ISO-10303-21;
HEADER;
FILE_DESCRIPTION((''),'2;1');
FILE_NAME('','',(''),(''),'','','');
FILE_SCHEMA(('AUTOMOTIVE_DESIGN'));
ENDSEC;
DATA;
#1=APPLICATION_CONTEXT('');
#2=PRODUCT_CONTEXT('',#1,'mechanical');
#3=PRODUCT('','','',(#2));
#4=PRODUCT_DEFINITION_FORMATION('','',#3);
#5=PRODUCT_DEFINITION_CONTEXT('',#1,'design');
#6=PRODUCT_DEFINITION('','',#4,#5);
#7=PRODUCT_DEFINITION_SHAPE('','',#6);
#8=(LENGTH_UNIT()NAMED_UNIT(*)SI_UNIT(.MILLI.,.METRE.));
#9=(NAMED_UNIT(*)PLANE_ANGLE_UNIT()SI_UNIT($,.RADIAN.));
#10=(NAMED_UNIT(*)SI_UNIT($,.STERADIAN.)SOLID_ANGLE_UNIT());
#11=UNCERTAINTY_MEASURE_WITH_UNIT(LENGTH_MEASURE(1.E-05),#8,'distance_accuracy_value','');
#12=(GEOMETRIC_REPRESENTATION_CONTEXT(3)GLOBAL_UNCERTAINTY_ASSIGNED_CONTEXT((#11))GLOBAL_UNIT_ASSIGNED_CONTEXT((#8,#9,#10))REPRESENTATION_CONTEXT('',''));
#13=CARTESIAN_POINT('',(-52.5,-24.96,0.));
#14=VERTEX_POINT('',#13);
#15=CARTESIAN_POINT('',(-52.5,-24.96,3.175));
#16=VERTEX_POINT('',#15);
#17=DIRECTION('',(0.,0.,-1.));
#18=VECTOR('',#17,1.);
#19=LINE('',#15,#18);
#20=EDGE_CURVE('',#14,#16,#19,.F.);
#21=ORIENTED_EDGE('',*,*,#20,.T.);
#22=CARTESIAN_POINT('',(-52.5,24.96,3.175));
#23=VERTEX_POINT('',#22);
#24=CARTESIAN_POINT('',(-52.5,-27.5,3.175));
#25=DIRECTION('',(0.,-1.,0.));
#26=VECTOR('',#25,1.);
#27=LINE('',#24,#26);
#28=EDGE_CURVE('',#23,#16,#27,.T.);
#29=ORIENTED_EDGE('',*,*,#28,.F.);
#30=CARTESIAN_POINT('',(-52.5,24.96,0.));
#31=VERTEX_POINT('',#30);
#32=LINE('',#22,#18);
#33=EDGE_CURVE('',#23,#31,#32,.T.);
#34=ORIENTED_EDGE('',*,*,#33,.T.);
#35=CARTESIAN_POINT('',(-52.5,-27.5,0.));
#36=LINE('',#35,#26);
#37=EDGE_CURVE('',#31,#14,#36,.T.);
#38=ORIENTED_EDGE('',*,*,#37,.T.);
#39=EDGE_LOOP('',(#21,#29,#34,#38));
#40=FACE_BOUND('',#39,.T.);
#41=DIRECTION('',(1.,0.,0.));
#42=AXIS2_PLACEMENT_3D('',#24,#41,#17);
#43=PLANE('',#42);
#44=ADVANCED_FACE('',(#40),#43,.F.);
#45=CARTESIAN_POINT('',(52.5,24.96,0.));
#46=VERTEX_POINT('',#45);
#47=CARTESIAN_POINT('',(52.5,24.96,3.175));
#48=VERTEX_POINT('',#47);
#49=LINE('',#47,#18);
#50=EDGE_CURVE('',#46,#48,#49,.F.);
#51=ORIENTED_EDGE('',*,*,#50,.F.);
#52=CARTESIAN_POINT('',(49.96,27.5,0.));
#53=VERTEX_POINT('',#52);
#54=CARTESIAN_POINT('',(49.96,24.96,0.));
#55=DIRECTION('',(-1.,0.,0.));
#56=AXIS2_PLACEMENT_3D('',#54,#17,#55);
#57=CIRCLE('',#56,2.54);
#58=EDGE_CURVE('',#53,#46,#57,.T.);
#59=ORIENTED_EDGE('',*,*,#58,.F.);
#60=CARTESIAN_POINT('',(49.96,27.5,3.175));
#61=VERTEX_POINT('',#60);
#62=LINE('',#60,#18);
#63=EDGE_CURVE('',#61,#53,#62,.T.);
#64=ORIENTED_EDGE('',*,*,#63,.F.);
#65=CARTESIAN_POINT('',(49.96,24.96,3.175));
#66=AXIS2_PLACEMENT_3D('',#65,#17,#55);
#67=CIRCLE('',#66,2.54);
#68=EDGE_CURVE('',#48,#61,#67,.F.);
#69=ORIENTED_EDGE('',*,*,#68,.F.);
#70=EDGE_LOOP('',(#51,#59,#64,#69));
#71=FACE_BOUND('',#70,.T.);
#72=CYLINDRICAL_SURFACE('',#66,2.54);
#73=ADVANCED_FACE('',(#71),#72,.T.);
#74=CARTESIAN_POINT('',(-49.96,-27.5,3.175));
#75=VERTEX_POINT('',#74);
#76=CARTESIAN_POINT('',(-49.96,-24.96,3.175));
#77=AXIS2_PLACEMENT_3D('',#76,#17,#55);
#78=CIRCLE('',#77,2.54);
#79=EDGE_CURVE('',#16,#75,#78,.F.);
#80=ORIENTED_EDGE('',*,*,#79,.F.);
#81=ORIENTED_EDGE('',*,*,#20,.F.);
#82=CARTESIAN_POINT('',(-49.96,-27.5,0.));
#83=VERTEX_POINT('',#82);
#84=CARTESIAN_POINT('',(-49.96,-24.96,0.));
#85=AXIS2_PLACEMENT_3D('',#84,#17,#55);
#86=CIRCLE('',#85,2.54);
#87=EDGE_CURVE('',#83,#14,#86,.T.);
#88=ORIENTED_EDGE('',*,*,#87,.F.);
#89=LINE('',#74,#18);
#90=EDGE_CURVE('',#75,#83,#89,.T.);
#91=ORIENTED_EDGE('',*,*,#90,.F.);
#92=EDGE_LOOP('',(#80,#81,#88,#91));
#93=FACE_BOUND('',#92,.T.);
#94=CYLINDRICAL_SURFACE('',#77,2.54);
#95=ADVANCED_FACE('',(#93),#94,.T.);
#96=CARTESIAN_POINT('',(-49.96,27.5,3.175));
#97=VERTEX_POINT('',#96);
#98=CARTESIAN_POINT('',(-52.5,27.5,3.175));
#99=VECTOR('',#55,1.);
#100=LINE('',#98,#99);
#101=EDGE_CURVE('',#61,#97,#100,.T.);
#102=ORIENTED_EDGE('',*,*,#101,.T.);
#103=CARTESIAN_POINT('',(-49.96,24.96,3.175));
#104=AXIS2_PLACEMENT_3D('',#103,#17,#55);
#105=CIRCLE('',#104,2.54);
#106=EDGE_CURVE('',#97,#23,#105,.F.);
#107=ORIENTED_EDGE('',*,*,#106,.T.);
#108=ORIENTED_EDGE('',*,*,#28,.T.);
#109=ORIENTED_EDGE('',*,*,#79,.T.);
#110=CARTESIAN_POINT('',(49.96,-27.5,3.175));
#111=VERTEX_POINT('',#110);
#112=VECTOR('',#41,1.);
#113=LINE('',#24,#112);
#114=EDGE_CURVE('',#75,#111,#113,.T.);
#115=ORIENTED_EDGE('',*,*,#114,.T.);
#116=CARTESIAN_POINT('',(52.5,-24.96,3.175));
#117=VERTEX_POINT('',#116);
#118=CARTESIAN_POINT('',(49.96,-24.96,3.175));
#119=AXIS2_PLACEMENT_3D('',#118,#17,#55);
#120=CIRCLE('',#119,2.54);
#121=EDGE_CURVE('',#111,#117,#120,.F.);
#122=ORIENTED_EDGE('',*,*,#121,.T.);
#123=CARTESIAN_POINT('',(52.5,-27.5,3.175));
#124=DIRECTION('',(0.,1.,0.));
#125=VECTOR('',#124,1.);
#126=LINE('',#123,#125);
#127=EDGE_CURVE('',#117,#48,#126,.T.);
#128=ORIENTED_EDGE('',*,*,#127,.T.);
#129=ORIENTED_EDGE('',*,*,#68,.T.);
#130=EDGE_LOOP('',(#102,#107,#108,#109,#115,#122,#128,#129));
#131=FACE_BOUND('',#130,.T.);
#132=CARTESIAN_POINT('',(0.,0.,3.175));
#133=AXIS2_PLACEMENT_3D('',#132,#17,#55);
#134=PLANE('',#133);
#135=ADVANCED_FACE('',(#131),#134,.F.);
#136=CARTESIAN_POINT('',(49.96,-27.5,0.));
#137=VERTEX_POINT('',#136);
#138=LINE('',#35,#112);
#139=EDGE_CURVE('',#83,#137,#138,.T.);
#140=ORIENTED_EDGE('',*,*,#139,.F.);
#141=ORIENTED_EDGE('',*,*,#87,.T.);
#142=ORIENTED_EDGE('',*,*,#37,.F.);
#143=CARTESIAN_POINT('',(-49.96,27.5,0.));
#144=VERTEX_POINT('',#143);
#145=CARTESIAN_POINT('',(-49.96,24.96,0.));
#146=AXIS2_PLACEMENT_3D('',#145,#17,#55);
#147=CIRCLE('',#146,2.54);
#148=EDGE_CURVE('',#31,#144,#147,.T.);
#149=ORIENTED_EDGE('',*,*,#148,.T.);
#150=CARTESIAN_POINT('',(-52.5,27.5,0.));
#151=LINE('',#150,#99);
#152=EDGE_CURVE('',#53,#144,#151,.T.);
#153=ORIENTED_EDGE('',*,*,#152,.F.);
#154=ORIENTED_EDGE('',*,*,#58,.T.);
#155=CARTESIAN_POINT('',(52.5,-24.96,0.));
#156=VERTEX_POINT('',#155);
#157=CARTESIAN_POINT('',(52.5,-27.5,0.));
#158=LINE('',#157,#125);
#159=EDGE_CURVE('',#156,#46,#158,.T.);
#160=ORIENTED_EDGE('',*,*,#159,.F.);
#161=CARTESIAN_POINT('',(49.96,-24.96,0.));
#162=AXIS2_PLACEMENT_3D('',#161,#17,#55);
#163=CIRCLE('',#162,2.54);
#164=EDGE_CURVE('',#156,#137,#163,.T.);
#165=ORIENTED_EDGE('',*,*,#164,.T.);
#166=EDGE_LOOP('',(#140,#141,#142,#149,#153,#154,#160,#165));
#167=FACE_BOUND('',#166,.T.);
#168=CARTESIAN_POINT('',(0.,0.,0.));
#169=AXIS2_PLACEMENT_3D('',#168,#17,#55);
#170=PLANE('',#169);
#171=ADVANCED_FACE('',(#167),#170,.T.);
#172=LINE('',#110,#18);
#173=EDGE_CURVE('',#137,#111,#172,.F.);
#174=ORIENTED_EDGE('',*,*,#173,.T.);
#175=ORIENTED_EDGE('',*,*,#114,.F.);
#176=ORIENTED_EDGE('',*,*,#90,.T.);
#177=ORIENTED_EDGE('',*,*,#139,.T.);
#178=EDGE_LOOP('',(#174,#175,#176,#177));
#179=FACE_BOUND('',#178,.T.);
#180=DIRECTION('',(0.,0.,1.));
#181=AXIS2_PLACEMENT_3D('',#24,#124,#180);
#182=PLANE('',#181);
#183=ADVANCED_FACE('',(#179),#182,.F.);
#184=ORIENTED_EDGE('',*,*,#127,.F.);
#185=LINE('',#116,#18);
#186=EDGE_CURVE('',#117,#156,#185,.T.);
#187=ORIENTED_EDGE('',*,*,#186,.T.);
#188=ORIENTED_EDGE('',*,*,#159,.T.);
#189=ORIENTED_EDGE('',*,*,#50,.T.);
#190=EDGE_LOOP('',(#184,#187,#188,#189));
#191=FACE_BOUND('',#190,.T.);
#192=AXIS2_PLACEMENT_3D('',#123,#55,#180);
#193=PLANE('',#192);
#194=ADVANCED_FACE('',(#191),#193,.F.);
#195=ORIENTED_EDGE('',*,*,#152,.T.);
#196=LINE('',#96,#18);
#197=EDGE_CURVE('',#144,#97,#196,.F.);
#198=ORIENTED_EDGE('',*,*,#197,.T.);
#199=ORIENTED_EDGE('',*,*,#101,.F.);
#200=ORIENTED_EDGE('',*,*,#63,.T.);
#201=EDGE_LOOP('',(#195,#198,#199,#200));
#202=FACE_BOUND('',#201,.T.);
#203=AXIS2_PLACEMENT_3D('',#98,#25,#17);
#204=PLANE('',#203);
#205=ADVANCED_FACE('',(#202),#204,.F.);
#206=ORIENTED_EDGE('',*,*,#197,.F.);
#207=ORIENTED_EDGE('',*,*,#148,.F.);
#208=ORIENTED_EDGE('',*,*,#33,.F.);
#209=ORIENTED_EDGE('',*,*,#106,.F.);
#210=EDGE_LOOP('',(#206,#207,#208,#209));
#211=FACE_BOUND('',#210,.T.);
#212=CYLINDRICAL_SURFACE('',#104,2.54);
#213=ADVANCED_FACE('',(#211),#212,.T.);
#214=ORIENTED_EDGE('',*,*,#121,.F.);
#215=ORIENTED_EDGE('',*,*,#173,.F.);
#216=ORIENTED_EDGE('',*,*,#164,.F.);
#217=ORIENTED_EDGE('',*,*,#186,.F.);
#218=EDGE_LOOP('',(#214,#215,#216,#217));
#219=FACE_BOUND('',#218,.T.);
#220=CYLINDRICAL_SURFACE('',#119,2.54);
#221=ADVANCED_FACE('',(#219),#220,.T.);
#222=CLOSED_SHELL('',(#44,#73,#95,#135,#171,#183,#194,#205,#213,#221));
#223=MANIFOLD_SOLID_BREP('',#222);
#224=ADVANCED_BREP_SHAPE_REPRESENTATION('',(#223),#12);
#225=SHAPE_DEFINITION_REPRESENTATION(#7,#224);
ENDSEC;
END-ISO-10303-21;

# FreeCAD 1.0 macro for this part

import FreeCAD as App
import Part
import Sketcher

V = App.Vector


def edges_at(feature, points):
    """Names of the edges that pass closest to the given points."""
    edges = feature.Shape.Edges
    near = lambda p: min(range(len(edges)), key=lambda i: edges[i].distToShape(Part.Vertex(*p))[0])
    return sorted({f"Edge{near(p) + 1}" for p in points})


def add_polygon(sketch, points):
    """Adds a closed chain of lines whose ends are joined by coincident constraints."""
    first, n = sketch.GeometryCount, len(points)
    for a, b in zip(points, points[1:] + points[:1]):
        sketch.addGeometry(Part.LineSegment(App.Vector(*a, 0), App.Vector(*b, 0)), False)
    for i in range(n):
        sketch.addConstraint(Sketcher.Constraint("Coincident", first + i, 2, first + (i + 1) % n, 1))

doc = App.newDocument("Part")
body = doc.addObject("PartDesign::Body", "Body")

# Sketch on XY plane
sketch1 = doc.addObject("Sketcher::SketchObject", "Sketch")
body.addObject(sketch1)
sketch1.AttachmentSupport = (doc.XY_Plane, [""])
sketch1.MapMode = "FlatFace"
add_polygon(sketch1, [(-52, 28), (-52, -28), (52, -28), (52, 28)])  # lines 0-3
sketch1.addConstraint([
    Sketcher.Constraint("Vertical", 0),
    Sketcher.Constraint("Horizontal", 1),
    Sketcher.Constraint("Vertical", 2),
    Sketcher.Constraint("Horizontal", 3),
    Sketcher.Constraint("Symmetric", 0, 2, 2, 2, -1, 1),
    Sketcher.Constraint("DistanceX", 1, 1, 1, 2, 105.0),
    Sketcher.Constraint("DistanceY", 0, 2, 0, 1, 55.0),
])
pad1 = doc.addObject("PartDesign::Pad", "Pad")
body.addObject(pad1)
pad1.Profile = sketch1
pad1.Length = 3.175
doc.recompute()

fillet = doc.addObject("PartDesign::Fillet", "Fillet")
body.addObject(fillet)
fillet.Base = (pad1, edges_at(pad1, [
    (52.5, -27.5, 1.587),
    (-52.5, -27.5, 1.587),
    (-52.5, 27.5, 1.587),
    (52.5, 27.5, 1.587),
]))
fillet.Radius = 2.54

doc.recompute()
